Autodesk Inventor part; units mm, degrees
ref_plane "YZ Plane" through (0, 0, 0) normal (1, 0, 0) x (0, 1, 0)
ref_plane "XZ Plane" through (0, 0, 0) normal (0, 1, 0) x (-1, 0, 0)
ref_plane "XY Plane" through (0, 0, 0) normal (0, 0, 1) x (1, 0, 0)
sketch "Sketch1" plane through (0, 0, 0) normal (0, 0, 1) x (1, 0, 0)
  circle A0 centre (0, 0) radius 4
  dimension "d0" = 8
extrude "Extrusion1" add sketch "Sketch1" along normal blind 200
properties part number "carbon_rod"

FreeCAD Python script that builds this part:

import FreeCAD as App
import Part
import Sketcher
Q = App.Units.Quantity

doc = App.newDocument("Part")
body = doc.addObject("PartDesign::Body", "Body")

# Sketch on XY plane
sketch1 = body.newObject("Sketcher::SketchObject", "Sketch")
sketch1.AttachmentSupport = (doc.getObject("XY_Plane"), [""])
sketch1.MapMode = "FlatFace"
sketch1.addGeometry(Part.Circle(App.Vector(0, 0, 0), App.Vector(0, 0, 1), 4), False)
sketch1.addConstraint([
    Sketcher.Constraint("Coincident", 0, 3, -1, 1),
    Sketcher.Constraint("Diameter", 0, Q("8 mm")),
])
pad1 = body.newObject("PartDesign::Pad", "Pad")
pad1.Profile = sketch1
pad1.Length = 200

doc.recompute()
